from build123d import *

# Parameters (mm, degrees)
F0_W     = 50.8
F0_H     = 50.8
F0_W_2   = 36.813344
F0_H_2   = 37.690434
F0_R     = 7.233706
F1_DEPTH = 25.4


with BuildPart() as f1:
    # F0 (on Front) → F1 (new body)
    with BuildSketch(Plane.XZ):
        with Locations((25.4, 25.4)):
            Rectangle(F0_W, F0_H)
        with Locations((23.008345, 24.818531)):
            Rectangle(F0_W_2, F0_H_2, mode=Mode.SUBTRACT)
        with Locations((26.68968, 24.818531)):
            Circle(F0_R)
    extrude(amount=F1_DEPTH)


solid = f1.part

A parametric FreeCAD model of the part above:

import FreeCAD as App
import Part
import Sketcher
from FreeCAD import Vector
Q = App.Units.Quantity

doc = App.newDocument("Part")
params = doc.addObject("Spreadsheet::Sheet", "Params")
for row, (alias, value) in enumerate([
    ("sketch1_width", "2 in"),
    ("pad1_length", "1 in"),
], start=1):
    params.set(f"A{row}", alias)
    params.set(f"B{row}", "=" + value)
    params.setAlias(f"B{row}", alias)

body = doc.addObject("PartDesign::Body", "Body")
body.AllowCompound = True

# Sketch on XZ plane
sketch1 = body.newObject("Sketcher::SketchObject", "Sketch")
sketch1.AttachmentSupport = (doc.getObject("XZ_Plane"), [""])
sketch1.MapMode = "FlatFace"
sketch1.addGeometry([
    Part.LineSegment(Vector(0, 51, 0), Vector(0, 0, 0)),  # 0
    Part.LineSegment(Vector(0, 0, 0), Vector(51, 0, 0)),  # 1
    Part.LineSegment(Vector(51, 0, 0), Vector(51, 51, 0)),  # 2
    Part.LineSegment(Vector(51, 51, 0), Vector(0, 51, 0)),  # 3
    Part.LineSegment(Vector(41, 6, 0), Vector(5, 6, 0)),  # 4
    Part.LineSegment(Vector(5, 6, 0), Vector(5, 44, 0)),  # 5
    Part.LineSegment(Vector(5, 44, 0), Vector(41, 44, 0)),  # 6
    Part.LineSegment(Vector(41, 44, 0), Vector(41, 6, 0)),  # 7
    Part.Circle(Vector(27, 25, 0), Vector(0, 0, 1), 7),  # 8
], False)
sketch1.addConstraint([
    Sketcher.Constraint("Coincident", 0, 2, 1, 1),
    Sketcher.Constraint("Coincident", 1, 2, 2, 1),
    Sketcher.Constraint("Coincident", 2, 2, 3, 1),
    Sketcher.Constraint("Coincident", 3, 2, 0, 1),
    Sketcher.Constraint("Coincident", 4, 2, 5, 1),
    Sketcher.Constraint("Coincident", 5, 2, 6, 1),
    Sketcher.Constraint("Coincident", 6, 2, 7, 1),
    Sketcher.Constraint("Coincident", 7, 2, 4, 1),
    Sketcher.Constraint("Vertical", 0),
    Sketcher.Constraint("Horizontal", 1),
    Sketcher.Constraint("Vertical", 2),
    Sketcher.Constraint("Horizontal", 3),
    Sketcher.Constraint("Horizontal", 4),
    Sketcher.Constraint("Vertical", 5),
    Sketcher.Constraint("Horizontal", 6),
    Sketcher.Constraint("Vertical", 7),
    Sketcher.Constraint("Coincident", 0, 2, -1, 1),
    Sketcher.Constraint("Equal", 3, 0),
    Sketcher.Constraint("DistanceX", 1, 1, 1, 2, Q("2 in")),
    Sketcher.Constraint("Diameter", 8, Q("14.467412 mm")),
    Sketcher.Constraint("DistanceX", 4, 2, 4, 1, Q("36.813344 mm")),
    Sketcher.Constraint("DistanceY", 5, 1, 5, 2, Q("37.690434 mm")),
    Sketcher.Constraint("DistanceX", -1, 1, 8, 3, Q("26.68968 mm")),
    Sketcher.Constraint("DistanceY", -1, 1, 8, 3, Q("24.818531 mm")),
    Sketcher.Constraint("DistanceY", 5, 2, 3, 2, Q("7.136252 mm")),
    Sketcher.Constraint("DistanceX", -1, 1, 4, 2, Q("4.601673 mm")),
])
sketch1.setExpression("Constraints[18]", "Params.sketch1_width")
pad1 = body.newObject("PartDesign::Pad", "Pad")
pad1.Profile = sketch1
pad1.setExpression("Length", "Params.pad1_length")

doc.recompute()
